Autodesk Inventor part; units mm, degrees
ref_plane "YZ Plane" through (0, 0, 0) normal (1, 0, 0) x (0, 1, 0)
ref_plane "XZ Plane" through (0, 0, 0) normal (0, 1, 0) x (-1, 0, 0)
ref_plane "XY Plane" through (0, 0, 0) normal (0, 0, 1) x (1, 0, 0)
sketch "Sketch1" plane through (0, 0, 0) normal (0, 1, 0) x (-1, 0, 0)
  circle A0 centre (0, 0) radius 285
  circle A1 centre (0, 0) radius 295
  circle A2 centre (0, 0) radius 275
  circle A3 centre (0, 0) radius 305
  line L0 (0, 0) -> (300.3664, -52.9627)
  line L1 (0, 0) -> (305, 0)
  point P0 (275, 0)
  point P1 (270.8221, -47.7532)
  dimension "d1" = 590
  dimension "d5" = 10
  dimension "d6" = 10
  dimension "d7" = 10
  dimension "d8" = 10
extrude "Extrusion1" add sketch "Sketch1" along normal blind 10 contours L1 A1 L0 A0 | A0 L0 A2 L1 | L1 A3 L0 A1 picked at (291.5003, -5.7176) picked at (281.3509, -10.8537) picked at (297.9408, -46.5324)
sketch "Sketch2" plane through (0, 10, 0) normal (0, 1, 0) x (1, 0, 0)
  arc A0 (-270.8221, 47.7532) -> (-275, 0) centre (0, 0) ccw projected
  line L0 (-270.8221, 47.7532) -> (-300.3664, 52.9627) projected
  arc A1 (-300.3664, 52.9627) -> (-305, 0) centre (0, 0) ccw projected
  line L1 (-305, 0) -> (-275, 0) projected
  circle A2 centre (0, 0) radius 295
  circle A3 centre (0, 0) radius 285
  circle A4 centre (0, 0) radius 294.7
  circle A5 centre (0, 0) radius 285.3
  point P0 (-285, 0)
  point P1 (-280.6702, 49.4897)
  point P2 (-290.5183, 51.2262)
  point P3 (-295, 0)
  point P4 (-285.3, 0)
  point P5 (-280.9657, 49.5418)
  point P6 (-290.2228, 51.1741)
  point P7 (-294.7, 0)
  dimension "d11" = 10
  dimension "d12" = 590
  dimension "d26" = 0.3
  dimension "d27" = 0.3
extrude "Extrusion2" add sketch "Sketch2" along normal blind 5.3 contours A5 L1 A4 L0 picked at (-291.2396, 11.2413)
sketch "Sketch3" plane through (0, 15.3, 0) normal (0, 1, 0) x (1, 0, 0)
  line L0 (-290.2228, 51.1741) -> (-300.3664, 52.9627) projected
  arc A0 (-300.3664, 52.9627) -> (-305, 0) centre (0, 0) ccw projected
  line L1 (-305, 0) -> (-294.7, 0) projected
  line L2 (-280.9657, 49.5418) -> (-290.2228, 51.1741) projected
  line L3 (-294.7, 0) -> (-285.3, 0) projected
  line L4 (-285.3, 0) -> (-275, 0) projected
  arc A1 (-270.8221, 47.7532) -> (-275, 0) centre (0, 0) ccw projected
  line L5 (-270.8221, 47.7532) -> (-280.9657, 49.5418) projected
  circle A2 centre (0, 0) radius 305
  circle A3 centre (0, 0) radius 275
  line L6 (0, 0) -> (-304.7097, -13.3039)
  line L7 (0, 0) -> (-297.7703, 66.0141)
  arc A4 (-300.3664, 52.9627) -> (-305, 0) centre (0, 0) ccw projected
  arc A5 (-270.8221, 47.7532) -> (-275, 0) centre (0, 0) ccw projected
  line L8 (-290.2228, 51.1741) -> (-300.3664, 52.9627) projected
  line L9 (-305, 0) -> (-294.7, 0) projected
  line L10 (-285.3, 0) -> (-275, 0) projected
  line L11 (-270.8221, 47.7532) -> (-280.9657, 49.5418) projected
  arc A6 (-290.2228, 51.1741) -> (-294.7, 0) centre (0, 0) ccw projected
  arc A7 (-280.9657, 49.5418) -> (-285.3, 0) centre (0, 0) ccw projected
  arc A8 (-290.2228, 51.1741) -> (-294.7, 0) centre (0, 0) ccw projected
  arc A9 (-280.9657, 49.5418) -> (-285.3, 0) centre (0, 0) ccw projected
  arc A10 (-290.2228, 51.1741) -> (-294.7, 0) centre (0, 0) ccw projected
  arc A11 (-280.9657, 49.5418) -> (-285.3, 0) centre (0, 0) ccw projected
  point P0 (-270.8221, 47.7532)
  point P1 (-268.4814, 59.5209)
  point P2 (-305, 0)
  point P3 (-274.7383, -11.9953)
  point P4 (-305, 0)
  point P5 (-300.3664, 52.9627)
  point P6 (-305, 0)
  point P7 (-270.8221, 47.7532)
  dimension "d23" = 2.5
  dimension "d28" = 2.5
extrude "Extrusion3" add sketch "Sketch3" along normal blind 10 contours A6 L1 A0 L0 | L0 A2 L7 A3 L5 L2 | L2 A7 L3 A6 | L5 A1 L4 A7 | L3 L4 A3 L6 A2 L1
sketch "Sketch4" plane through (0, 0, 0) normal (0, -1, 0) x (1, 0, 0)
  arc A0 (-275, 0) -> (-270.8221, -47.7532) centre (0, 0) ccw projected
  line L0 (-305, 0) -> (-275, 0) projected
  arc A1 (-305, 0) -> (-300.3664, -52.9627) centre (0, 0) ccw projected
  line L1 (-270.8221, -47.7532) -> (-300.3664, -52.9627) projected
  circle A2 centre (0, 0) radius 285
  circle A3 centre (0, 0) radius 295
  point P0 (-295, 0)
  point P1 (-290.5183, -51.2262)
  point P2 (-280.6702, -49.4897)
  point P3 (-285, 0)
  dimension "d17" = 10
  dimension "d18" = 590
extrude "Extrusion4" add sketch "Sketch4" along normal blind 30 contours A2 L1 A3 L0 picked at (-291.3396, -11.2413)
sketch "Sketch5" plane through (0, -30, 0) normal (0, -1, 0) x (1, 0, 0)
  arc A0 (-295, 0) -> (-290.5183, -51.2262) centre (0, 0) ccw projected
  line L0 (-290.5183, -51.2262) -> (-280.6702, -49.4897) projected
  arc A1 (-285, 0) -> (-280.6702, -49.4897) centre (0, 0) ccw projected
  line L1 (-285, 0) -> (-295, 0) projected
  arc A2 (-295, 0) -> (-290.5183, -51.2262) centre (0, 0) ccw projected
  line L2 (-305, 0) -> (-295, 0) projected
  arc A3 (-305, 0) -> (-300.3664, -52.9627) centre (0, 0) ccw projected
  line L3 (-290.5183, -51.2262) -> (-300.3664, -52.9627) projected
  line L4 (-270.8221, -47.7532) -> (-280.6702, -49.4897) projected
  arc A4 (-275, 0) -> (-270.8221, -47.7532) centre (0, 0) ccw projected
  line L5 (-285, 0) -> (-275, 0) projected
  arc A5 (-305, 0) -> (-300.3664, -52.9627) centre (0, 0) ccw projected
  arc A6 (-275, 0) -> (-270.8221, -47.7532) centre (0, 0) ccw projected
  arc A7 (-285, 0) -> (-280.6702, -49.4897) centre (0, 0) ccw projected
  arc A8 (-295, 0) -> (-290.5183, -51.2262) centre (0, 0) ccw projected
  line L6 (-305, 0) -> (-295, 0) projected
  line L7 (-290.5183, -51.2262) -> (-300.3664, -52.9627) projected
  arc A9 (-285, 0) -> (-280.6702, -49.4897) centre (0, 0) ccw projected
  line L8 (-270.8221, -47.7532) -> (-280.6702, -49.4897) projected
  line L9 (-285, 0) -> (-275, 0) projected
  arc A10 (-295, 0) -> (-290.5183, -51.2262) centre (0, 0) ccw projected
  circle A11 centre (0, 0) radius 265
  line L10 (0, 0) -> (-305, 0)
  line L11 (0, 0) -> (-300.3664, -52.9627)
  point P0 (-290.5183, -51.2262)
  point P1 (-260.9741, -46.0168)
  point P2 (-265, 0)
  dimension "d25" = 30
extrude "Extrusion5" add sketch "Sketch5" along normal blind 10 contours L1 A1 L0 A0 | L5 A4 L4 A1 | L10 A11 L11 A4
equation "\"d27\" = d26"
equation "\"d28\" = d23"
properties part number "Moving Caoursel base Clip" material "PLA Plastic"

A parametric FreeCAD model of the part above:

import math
import FreeCAD as App
import Part
import Sketcher

V = App.Vector
Q = App.Units.Quantity

doc = App.newDocument("Part")
body = doc.addObject("PartDesign::Body", "Body")

sketch1 = body.newObject("Sketcher::SketchObject", "Sketch")
sketch1.AttachmentSupport = (doc.getObject("XZ_Plane"), [""])
sketch1.MapMode = "FlatFace"
sketch1.addGeometry(Part.ArcOfCircle(Part.Circle(V(0, 0, 0), V(0, 0, 1), 275), math.radians(180), math.radians(190)), False)
sketch1.addGeometry(Part.LineSegment(V(-270.822132, -47.753248, 0), V(-300.3664, -52.9627, 0)), False)
sketch1.addGeometry(Part.ArcOfCircle(Part.Circle(V(0, 0, 0), V(0, 0, 1), 305), math.radians(180), math.radians(190)), False)
sketch1.addGeometry(Part.LineSegment(V(-305, 0, 0), V(-275, 0, 0)), False)
sketch1.addConstraint(Sketcher.Constraint("Coincident", 0, 2, 1, 1))
sketch1.addConstraint(Sketcher.Constraint("Coincident", 1, 2, 2, 2))
sketch1.addConstraint(Sketcher.Constraint("Coincident", 2, 1, 3, 1))
sketch1.addConstraint(Sketcher.Constraint("Coincident", 3, 2, 0, 1))
sketch1.addConstraint(Sketcher.Constraint("Horizontal", 3))
sketch1.addConstraint(Sketcher.Constraint("Coincident", 0, 3, -1, 1))
sketch1.addConstraint(Sketcher.Constraint("Coincident", 2, 3, -1, 1))
sketch1.addConstraint(Sketcher.Constraint("PointOnObject", 2, 1, -1))
sketch1.addConstraint(Sketcher.Constraint("Radius", 0, 275.0))
sketch1.addConstraint(Sketcher.Constraint("Radius", 2, 305.0))
sketch1.addConstraint(Sketcher.Constraint("Angle", 1, Q("-170 deg")))
sketch1.addConstraint(Sketcher.Constraint("DistanceX", 0, 2, -1, 1, 270.8221))
pad1 = body.newObject("PartDesign::Pad", "Pad")
pad1.Profile = sketch1
pad1.Length = 10
pad1.Reversed = True

sketch2 = body.newObject("Sketcher::SketchObject", "Sketch001")
sketch2.AttachmentSupport = (doc.getObject("XZ_Plane"), [""])
sketch2.MapMode = "FlatFace"
sketch2.AttachmentOffset = App.Placement(V(0, 0, -10), App.Rotation())
sketch2.addGeometry(Part.ArcOfCircle(Part.Circle(V(0, 0, 0), V(0, 0, 1), 285.3), math.radians(180), math.radians(189.999994)), False)
sketch2.addGeometry(Part.LineSegment(V(-280.965657, -49.541797, 0), V(-290.222847, -51.174103, 0)), False)
sketch2.addGeometry(Part.ArcOfCircle(Part.Circle(V(0, 0, 0), V(0, 0, 1), 294.7), math.radians(180), math.radians(189.999997)), False)
sketch2.addGeometry(Part.LineSegment(V(-294.7, 0, 0), V(-285.3, 0, 0)), False)
sketch2.addConstraint(Sketcher.Constraint("Coincident", 0, 2, 1, 1))
sketch2.addConstraint(Sketcher.Constraint("Coincident", 1, 2, 2, 2))
sketch2.addConstraint(Sketcher.Constraint("Coincident", 2, 1, 3, 1))
sketch2.addConstraint(Sketcher.Constraint("Coincident", 3, 2, 0, 1))
sketch2.addConstraint(Sketcher.Constraint("Horizontal", 3))
sketch2.addConstraint(Sketcher.Constraint("Coincident", 0, 3, -1, 1))
sketch2.addConstraint(Sketcher.Constraint("Coincident", 2, 3, -1, 1))
sketch2.addConstraint(Sketcher.Constraint("PointOnObject", 2, 1, -1))
sketch2.addConstraint(Sketcher.Constraint("Radius", 0, 285.3))
sketch2.addConstraint(Sketcher.Constraint("Radius", 2, 294.7))
sketch2.addConstraint(Sketcher.Constraint("Angle", 1, Q("-170 deg")))
sketch2.addConstraint(Sketcher.Constraint("DistanceY", 1, 2, -1, 1, 51.174))
pad2 = body.newObject("PartDesign::Pad", "Pad001")
pad2.Profile = sketch2
pad2.Length = 5.3
pad2.Reversed = True

sketch3 = body.newObject("Sketcher::SketchObject", "Sketch002")
sketch3.AttachmentSupport = (doc.getObject("XZ_Plane"), [""])
sketch3.MapMode = "FlatFace"
sketch3.AttachmentOffset = App.Placement(V(0, 0, -15.3), App.Rotation())
sketch3.addGeometry(Part.ArcOfCircle(Part.Circle(V(-0.004669, -0.000615, 0), V(0, 0, 1), 304.995331), math.radians(179.999885), math.radians(190.000039)), False)
sketch3.addGeometry(Part.ArcOfCircle(Part.Circle(V(0, 0, 0), V(0, 0, 1), 305), math.radians(177.500002), math.radians(180)), False)
sketch3.addGeometry(Part.LineSegment(V(-304.7097, 13.3039, 0), V(-274.738261, 11.99532, 0)), False)
sketch3.addGeometry(Part.ArcOfCircle(Part.Circle(V(0, 0, 0), V(0, 0, 1), 275), math.radians(177.500002), math.radians(180)), False)
sketch3.addGeometry(Part.ArcOfCircle(Part.Circle(V(0.005226, 0.000688, 0), V(0, 0, 1), 275.005226), math.radians(-179.999857), math.radians(-170.000057)), False)
sketch3.addGeometry(Part.ArcOfCircle(Part.Circle(V(0, 0, 0), V(0, 0, 1), 275), math.radians(-170.000009), math.radians(-167.499997)), False)
sketch3.addGeometry(Part.LineSegment(V(-268.481399, -59.520906, 0), V(-297.7703, -66.0141, 0)), False)
sketch3.addGeometry(Part.ArcOfCircle(Part.Circle(V(0, 0, 0), V(0, 0, 1), 305), math.radians(-170), math.radians(-167.499997)), False)
sketch3.addConstraint(Sketcher.Constraint("Coincident", 0, 1, 1, 2))
sketch3.addConstraint(Sketcher.Constraint("Coincident", 1, 1, 2, 1))
sketch3.addConstraint(Sketcher.Constraint("Coincident", 2, 2, 3, 1))
sketch3.addConstraint(Sketcher.Constraint("Coincident", 3, 2, 4, 1))
sketch3.addConstraint(Sketcher.Constraint("Coincident", 4, 2, 5, 1))
sketch3.addConstraint(Sketcher.Constraint("Coincident", 5, 2, 6, 1))
sketch3.addConstraint(Sketcher.Constraint("Coincident", 6, 2, 7, 2))
sketch3.addConstraint(Sketcher.Constraint("Coincident", 7, 1, 0, 2))
sketch3.addConstraint(Sketcher.Constraint("Coincident", 1, 3, -1, 1))
sketch3.addConstraint(Sketcher.Constraint("Coincident", 3, 3, -1, 1))
sketch3.addConstraint(Sketcher.Constraint("Coincident", 5, 3, -1, 1))
sketch3.addConstraint(Sketcher.Constraint("Coincident", 7, 3, -1, 1))
sketch3.addConstraint(Sketcher.Constraint("PointOnObject", 0, 1, -1))
sketch3.addConstraint(Sketcher.Constraint("PointOnObject", 3, 2, -1))
sketch3.addConstraint(Sketcher.Constraint("Radius", 1, 305.0))
sketch3.addConstraint(Sketcher.Constraint("Radius", 3, 275.0))
sketch3.addConstraint(Sketcher.Constraint("Radius", 5, 275.0))
sketch3.addConstraint(Sketcher.Constraint("Radius", 7, 305.0))
sketch3.addConstraint(Sketcher.Constraint("Radius", 0, 304.9953))
sketch3.addConstraint(Sketcher.Constraint("Radius", 4, 275.0052))
sketch3.addConstraint(Sketcher.Constraint("DistanceY", -1, 1, 1, 1, 13.304))
sketch3.addConstraint(Sketcher.Constraint("DistanceX", 4, 2, -1, 1, 270.822))
sketch3.addConstraint(Sketcher.Constraint("DistanceY", 5, 2, -1, 1, 59.521))
sketch3.addConstraint(Sketcher.Constraint("DistanceY", 6, 2, -1, 1, 66.014))
sketch3.addConstraint(Sketcher.Constraint("DistanceY", 0, 3, 2, 2, 11.996))
sketch3.addConstraint(Sketcher.Constraint("DistanceX", 7, 1, 6, 2, 2.596))
pad3 = body.newObject("PartDesign::Pad", "Pad002")
pad3.Profile = sketch3
pad3.Length = 10
pad3.Reversed = True

sketch4 = body.newObject("Sketcher::SketchObject", "Sketch003")
sketch4.AttachmentSupport = (doc.getObject("XZ_Plane"), [""])
sketch4.MapMode = "FlatFace"
sketch4.addGeometry(Part.ArcOfCircle(Part.Circle(V(0, 0, 0), V(0, 0, 1), 285), math.radians(180), math.radians(189.999994)), False)
sketch4.addGeometry(Part.LineSegment(V(-285, 0, 0), V(-295, 0, 0)), False)
sketch4.addGeometry(Part.ArcOfCircle(Part.Circle(V(0, 0, 0), V(0, 0, 1), 295), math.radians(180), math.radians(189.999997)), False)
sketch4.addGeometry(Part.LineSegment(V(-290.51829, -51.226198, 0), V(-280.670215, -49.489703, 0)), False)
sketch4.addConstraint(Sketcher.Constraint("Coincident", 0, 1, 1, 1))
sketch4.addConstraint(Sketcher.Constraint("Coincident", 1, 2, 2, 1))
sketch4.addConstraint(Sketcher.Constraint("Coincident", 2, 2, 3, 1))
sketch4.addConstraint(Sketcher.Constraint("Coincident", 3, 2, 0, 2))
sketch4.addConstraint(Sketcher.Constraint("Horizontal", 1))
sketch4.addConstraint(Sketcher.Constraint("Coincident", 0, 3, -1, 1))
sketch4.addConstraint(Sketcher.Constraint("Coincident", 2, 3, -1, 1))
sketch4.addConstraint(Sketcher.Constraint("PointOnObject", 0, 1, -1))
sketch4.addConstraint(Sketcher.Constraint("Radius", 2, 295.0))
sketch4.addConstraint(Sketcher.Constraint("DistanceX", 1, 2, 1, 1, 10.0))
sketch4.addConstraint(Sketcher.Constraint("Angle", 3, Q("10 deg")))
sketch4.addConstraint(Sketcher.Constraint("DistanceX", 2, 2, -1, 1, 290.5183))
pad4 = body.newObject("PartDesign::Pad", "Pad003")
pad4.Profile = sketch4
pad4.Length = 30

sketch5 = body.newObject("Sketcher::SketchObject", "Sketch004")
sketch5.AttachmentSupport = (doc.getObject("XZ_Plane"), [""])
sketch5.MapMode = "FlatFace"
sketch5.AttachmentOffset = App.Placement(V(0, 0, 30), App.Rotation())
sketch5.addGeometry(Part.ArcOfCircle(Part.Circle(V(0.001381, 0.00006, 0), V(0, 0, 1), 295.001381), math.radians(-179.999988), math.radians(-170.000038)), False)
sketch5.addGeometry(Part.LineSegment(V(-290.5183, -51.2262, 0), V(-270.8221, -47.7532, 0)), False)
sketch5.addGeometry(Part.LineSegment(V(-270.822093, -47.753242, 0), V(-260.974055, -46.016767, 0)), False)
sketch5.addGeometry(Part.ArcOfCircle(Part.Circle(V(0, 0, 0), V(0, 0, 1), 265), math.radians(180), math.radians(190)), False)
sketch5.addGeometry(Part.LineSegment(V(-265, 0, 0), V(-295, 0, 0)), False)
sketch5.addConstraint(Sketcher.Constraint("Coincident", 0, 2, 1, 1))
sketch5.addConstraint(Sketcher.Constraint("Coincident", 1, 2, 2, 1))
sketch5.addConstraint(Sketcher.Constraint("Coincident", 2, 2, 3, 2))
sketch5.addConstraint(Sketcher.Constraint("Coincident", 3, 1, 4, 1))
sketch5.addConstraint(Sketcher.Constraint("Coincident", 4, 2, 0, 1))
sketch5.addConstraint(Sketcher.Constraint("Horizontal", 4))
sketch5.addConstraint(Sketcher.Constraint("Coincident", 3, 3, -1, 1))
sketch5.addConstraint(Sketcher.Constraint("PointOnObject", 0, 3, -1))
sketch5.addConstraint(Sketcher.Constraint("PointOnObject", 3, 1, -1))
sketch5.addConstraint(Sketcher.Constraint("Parallel", 1, 2))
sketch5.addConstraint(Sketcher.Constraint("DistanceX", 4, 2, 4, 1, 30.0))
sketch5.addConstraint(Sketcher.Constraint("Radius", 3, 265.0))
sketch5.addConstraint(Sketcher.Constraint("Angle", 1, Q("10 deg")))
sketch5.addConstraint(Sketcher.Constraint("Distance", 1, 20.0))
sketch5.addConstraint(Sketcher.Constraint("Distance", 2, 10.0))
sketch5.addConstraint(Sketcher.Constraint("DistanceX", 1, 2, -1, 1, 270.822))
pad5 = body.newObject("PartDesign::Pad", "Pad004")
pad5.Profile = sketch5
pad5.Length = 10

doc.recompute()
